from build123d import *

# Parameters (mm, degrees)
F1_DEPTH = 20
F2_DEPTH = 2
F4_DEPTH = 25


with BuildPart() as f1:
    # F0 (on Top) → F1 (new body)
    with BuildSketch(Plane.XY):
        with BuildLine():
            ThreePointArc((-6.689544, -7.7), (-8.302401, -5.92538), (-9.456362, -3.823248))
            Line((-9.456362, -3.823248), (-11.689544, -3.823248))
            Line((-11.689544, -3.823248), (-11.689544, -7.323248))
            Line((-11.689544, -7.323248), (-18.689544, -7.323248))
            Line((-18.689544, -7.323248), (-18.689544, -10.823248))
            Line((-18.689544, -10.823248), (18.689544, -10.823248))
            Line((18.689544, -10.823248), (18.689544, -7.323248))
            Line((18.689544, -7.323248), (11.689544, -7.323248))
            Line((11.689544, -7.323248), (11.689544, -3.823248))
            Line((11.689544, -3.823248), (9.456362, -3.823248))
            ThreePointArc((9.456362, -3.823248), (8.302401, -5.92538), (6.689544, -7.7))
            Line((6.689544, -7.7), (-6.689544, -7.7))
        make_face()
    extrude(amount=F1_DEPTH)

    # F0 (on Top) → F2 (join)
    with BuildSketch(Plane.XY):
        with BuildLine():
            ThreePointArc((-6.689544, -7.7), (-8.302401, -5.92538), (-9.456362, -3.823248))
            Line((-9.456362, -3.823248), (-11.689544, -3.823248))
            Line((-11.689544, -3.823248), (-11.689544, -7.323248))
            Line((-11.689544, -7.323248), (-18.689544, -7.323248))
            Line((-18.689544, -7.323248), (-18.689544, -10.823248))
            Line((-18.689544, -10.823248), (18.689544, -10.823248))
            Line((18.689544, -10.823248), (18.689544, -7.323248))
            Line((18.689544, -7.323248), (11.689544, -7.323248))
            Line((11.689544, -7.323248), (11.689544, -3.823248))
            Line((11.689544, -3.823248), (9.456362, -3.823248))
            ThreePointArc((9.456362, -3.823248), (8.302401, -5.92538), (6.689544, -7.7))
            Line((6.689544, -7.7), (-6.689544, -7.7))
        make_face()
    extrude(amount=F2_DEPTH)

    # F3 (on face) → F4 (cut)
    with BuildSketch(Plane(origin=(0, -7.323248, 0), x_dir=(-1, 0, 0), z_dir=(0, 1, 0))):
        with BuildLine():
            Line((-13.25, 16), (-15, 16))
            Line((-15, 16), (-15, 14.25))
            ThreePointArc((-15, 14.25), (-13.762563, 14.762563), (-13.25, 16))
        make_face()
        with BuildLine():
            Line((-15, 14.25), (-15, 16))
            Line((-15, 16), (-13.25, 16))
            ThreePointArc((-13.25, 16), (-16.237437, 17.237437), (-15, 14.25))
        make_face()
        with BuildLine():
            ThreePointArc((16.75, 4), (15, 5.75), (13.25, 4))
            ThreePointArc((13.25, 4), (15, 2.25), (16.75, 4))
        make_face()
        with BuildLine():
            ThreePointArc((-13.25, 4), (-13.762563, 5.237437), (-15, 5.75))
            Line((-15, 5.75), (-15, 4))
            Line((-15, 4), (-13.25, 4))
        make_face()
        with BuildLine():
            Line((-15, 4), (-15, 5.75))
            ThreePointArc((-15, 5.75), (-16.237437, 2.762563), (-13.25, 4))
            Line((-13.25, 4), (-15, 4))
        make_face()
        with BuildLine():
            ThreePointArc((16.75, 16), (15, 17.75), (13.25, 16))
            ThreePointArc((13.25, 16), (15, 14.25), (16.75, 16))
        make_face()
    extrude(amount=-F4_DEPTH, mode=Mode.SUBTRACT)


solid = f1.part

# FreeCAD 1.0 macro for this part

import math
import FreeCAD as App
import Part
import Sketcher

V = App.Vector

doc = App.newDocument("Part")
body = doc.addObject("PartDesign::Body", "Body")

# Sketch on XY plane
sketch1 = doc.addObject("Sketcher::SketchObject", "Sketch")
body.addObject(sketch1)
sketch1.AttachmentSupport = (doc.XY_Plane, [""])
sketch1.MapMode = "FlatFace"
sketch1.addGeometry(Part.ArcOfCircle(Part.Circle(V(0.000018, 0.000014, 0), V(0, 0, 1), 10.200022), math.radians(-157.986269), math.radians(-130.98322)), False)
sketch1.addGeometry(Part.LineSegment(V(-9.456362, -3.823248, 0), V(-11.689544, -3.823248, 0)), False)
sketch1.addGeometry(Part.LineSegment(V(-11.689544, -3.823248, 0), V(-11.689544, -7.323248, 0)), False)
sketch1.addGeometry(Part.LineSegment(V(-11.689544, -7.323248, 0), V(-18.689544, -7.323248, 0)), False)
sketch1.addGeometry(Part.LineSegment(V(-18.689544, -7.323248, 0), V(-18.689544, -10.823248, 0)), False)
sketch1.addGeometry(Part.LineSegment(V(-18.689544, -10.823248, 0), V(18.689544, -10.823248, 0)), False)
sketch1.addGeometry(Part.LineSegment(V(18.689544, -10.823248, 0), V(18.689544, -7.323248, 0)), False)
sketch1.addGeometry(Part.LineSegment(V(18.689544, -7.323248, 0), V(11.689544, -7.323248, 0)), False)
sketch1.addGeometry(Part.LineSegment(V(11.689544, -7.323248, 0), V(11.689544, -3.823248, 0)), False)
sketch1.addGeometry(Part.LineSegment(V(11.689544, -3.823248, 0), V(9.456362, -3.823248, 0)), False)
sketch1.addGeometry(Part.ArcOfCircle(Part.Circle(V(-0.000018, 0.000014, 0), V(0, 0, 1), 10.200022), math.radians(-49.01678), math.radians(-22.013731)), False)
sketch1.addGeometry(Part.LineSegment(V(6.689544, -7.7, 0), V(-6.689544, -7.7, 0)), False)
sketch1.addConstraint(Sketcher.Constraint("Coincident", 0, 1, 1, 1))
sketch1.addConstraint(Sketcher.Constraint("Coincident", 1, 2, 2, 1))
sketch1.addConstraint(Sketcher.Constraint("Coincident", 2, 2, 3, 1))
sketch1.addConstraint(Sketcher.Constraint("Coincident", 3, 2, 4, 1))
sketch1.addConstraint(Sketcher.Constraint("Coincident", 4, 2, 5, 1))
sketch1.addConstraint(Sketcher.Constraint("Coincident", 5, 2, 6, 1))
sketch1.addConstraint(Sketcher.Constraint("Coincident", 6, 2, 7, 1))
sketch1.addConstraint(Sketcher.Constraint("Coincident", 7, 2, 8, 1))
sketch1.addConstraint(Sketcher.Constraint("Coincident", 8, 2, 9, 1))
sketch1.addConstraint(Sketcher.Constraint("Coincident", 9, 2, 10, 2))
sketch1.addConstraint(Sketcher.Constraint("Coincident", 10, 1, 11, 1))
sketch1.addConstraint(Sketcher.Constraint("Coincident", 11, 2, 0, 2))
sketch1.addConstraint(Sketcher.Constraint("Horizontal", 1))
sketch1.addConstraint(Sketcher.Constraint("Vertical", 2))
sketch1.addConstraint(Sketcher.Constraint("Horizontal", 3))
sketch1.addConstraint(Sketcher.Constraint("Vertical", 4))
sketch1.addConstraint(Sketcher.Constraint("Horizontal", 5))
sketch1.addConstraint(Sketcher.Constraint("Vertical", 6))
sketch1.addConstraint(Sketcher.Constraint("Horizontal", 7))
sketch1.addConstraint(Sketcher.Constraint("Vertical", 8))
sketch1.addConstraint(Sketcher.Constraint("Horizontal", 9))
sketch1.addConstraint(Sketcher.Constraint("Horizontal", 11))
sketch1.addConstraint(Sketcher.Constraint("Equal", 0, 10))
sketch1.addConstraint(Sketcher.Constraint("Symmetric", 0, 3, 10, 3, -2))
sketch1.addConstraint(Sketcher.Constraint("Symmetric", 3, 2, 6, 2, -2))
sketch1.addConstraint(Sketcher.Constraint("Symmetric", 1, 2, 8, 2, -2))
sketch1.addConstraint(Sketcher.Constraint("Equal", 2, 4))
sketch1.addConstraint(Sketcher.Constraint("DistanceX", 3, 2, 3, 1, 7.0))
sketch1.addConstraint(Sketcher.Constraint("DistanceY", 2, 2, 2, 1, 3.5))
sketch1.addConstraint(Sketcher.Constraint("DistanceX", 10, 1, 7, 2, 5.0))
sketch1.addConstraint(Sketcher.Constraint("DistanceY", 10, 1, -1, 1, 7.7))
sketch1.addConstraint(Sketcher.Constraint("Radius", 0, 10.200022))
sketch1.addConstraint(Sketcher.Constraint("DistanceX", 1, 2, 1, 1, 2.233182))
sketch1.addConstraint(Sketcher.Constraint("DistanceX", 5, 1, 5, 2, 37.379088))
sketch1.addConstraint(Sketcher.Constraint("DistanceY", 0, 1, -1, 1, 3.823248))
pad1 = doc.addObject("PartDesign::Pad", "Pad")
body.addObject(pad1)
pad1.Profile = sketch1
pad1.Length = 20

# Sketch on XY plane
sketch2 = doc.addObject("Sketcher::SketchObject", "Sketch001")
body.addObject(sketch2)
sketch2.AttachmentSupport = (doc.XY_Plane, [""])
sketch2.MapMode = "FlatFace"
sketch2.addGeometry(Part.ArcOfCircle(Part.Circle(V(0.000018, 0.000014, 0), V(0, 0, 1), 10.200022), math.radians(-157.986269), math.radians(-130.98322)), False)
sketch2.addGeometry(Part.LineSegment(V(-9.456362, -3.823248, 0), V(-11.689544, -3.823248, 0)), False)
sketch2.addGeometry(Part.LineSegment(V(-11.689544, -3.823248, 0), V(-11.689544, -7.323248, 0)), False)
sketch2.addGeometry(Part.LineSegment(V(-11.689544, -7.323248, 0), V(-18.689544, -7.323248, 0)), False)
sketch2.addGeometry(Part.LineSegment(V(-18.689544, -7.323248, 0), V(-18.689544, -10.823248, 0)), False)
sketch2.addGeometry(Part.LineSegment(V(-18.689544, -10.823248, 0), V(18.689544, -10.823248, 0)), False)
sketch2.addGeometry(Part.LineSegment(V(18.689544, -10.823248, 0), V(18.689544, -7.323248, 0)), False)
sketch2.addGeometry(Part.LineSegment(V(18.689544, -7.323248, 0), V(11.689544, -7.323248, 0)), False)
sketch2.addGeometry(Part.LineSegment(V(11.689544, -7.323248, 0), V(11.689544, -3.823248, 0)), False)
sketch2.addGeometry(Part.LineSegment(V(11.689544, -3.823248, 0), V(9.456362, -3.823248, 0)), False)
sketch2.addGeometry(Part.ArcOfCircle(Part.Circle(V(-0.000018, 0.000014, 0), V(0, 0, 1), 10.200022), math.radians(-49.01678), math.radians(-22.013731)), False)
sketch2.addGeometry(Part.LineSegment(V(6.689544, -7.7, 0), V(-6.689544, -7.7, 0)), False)
sketch2.addConstraint(Sketcher.Constraint("Coincident", 0, 1, 1, 1))
sketch2.addConstraint(Sketcher.Constraint("Coincident", 1, 2, 2, 1))
sketch2.addConstraint(Sketcher.Constraint("Coincident", 2, 2, 3, 1))
sketch2.addConstraint(Sketcher.Constraint("Coincident", 3, 2, 4, 1))
sketch2.addConstraint(Sketcher.Constraint("Coincident", 4, 2, 5, 1))
sketch2.addConstraint(Sketcher.Constraint("Coincident", 5, 2, 6, 1))
sketch2.addConstraint(Sketcher.Constraint("Coincident", 6, 2, 7, 1))
sketch2.addConstraint(Sketcher.Constraint("Coincident", 7, 2, 8, 1))
sketch2.addConstraint(Sketcher.Constraint("Coincident", 8, 2, 9, 1))
sketch2.addConstraint(Sketcher.Constraint("Coincident", 9, 2, 10, 2))
sketch2.addConstraint(Sketcher.Constraint("Coincident", 10, 1, 11, 1))
sketch2.addConstraint(Sketcher.Constraint("Coincident", 11, 2, 0, 2))
sketch2.addConstraint(Sketcher.Constraint("Horizontal", 1))
sketch2.addConstraint(Sketcher.Constraint("Vertical", 2))
sketch2.addConstraint(Sketcher.Constraint("Horizontal", 3))
sketch2.addConstraint(Sketcher.Constraint("Vertical", 4))
sketch2.addConstraint(Sketcher.Constraint("Horizontal", 5))
sketch2.addConstraint(Sketcher.Constraint("Vertical", 6))
sketch2.addConstraint(Sketcher.Constraint("Horizontal", 7))
sketch2.addConstraint(Sketcher.Constraint("Vertical", 8))
sketch2.addConstraint(Sketcher.Constraint("Horizontal", 9))
sketch2.addConstraint(Sketcher.Constraint("Horizontal", 11))
sketch2.addConstraint(Sketcher.Constraint("Equal", 0, 10))
sketch2.addConstraint(Sketcher.Constraint("Symmetric", 0, 3, 10, 3, -2))
sketch2.addConstraint(Sketcher.Constraint("Symmetric", 3, 2, 6, 2, -2))
sketch2.addConstraint(Sketcher.Constraint("Symmetric", 1, 2, 8, 2, -2))
sketch2.addConstraint(Sketcher.Constraint("Equal", 2, 4))
sketch2.addConstraint(Sketcher.Constraint("DistanceX", 3, 2, 3, 1, 7.0))
sketch2.addConstraint(Sketcher.Constraint("DistanceY", 2, 2, 2, 1, 3.5))
sketch2.addConstraint(Sketcher.Constraint("DistanceX", 10, 1, 7, 2, 5.0))
sketch2.addConstraint(Sketcher.Constraint("DistanceY", 10, 1, -1, 1, 7.7))
sketch2.addConstraint(Sketcher.Constraint("Radius", 0, 10.200022))
sketch2.addConstraint(Sketcher.Constraint("DistanceX", 1, 2, 1, 1, 2.233182))
sketch2.addConstraint(Sketcher.Constraint("DistanceX", 5, 1, 5, 2, 37.379088))
sketch2.addConstraint(Sketcher.Constraint("DistanceY", 0, 1, -1, 1, 3.823248))
pad2 = doc.addObject("PartDesign::Pad", "Pad001")
body.addObject(pad2)
pad2.Profile = sketch2
pad2.Length = 2

# Sketch on XZ plane
sketch3 = doc.addObject("Sketcher::SketchObject", "Sketch002")
body.addObject(sketch3)
sketch3.AttachmentSupport = (doc.XZ_Plane, [""])
sketch3.MapMode = "FlatFace"
sketch3.AttachmentOffset = App.Placement(V(0, 0, 7.323248), App.Rotation())
sketch3.addGeometry(Part.ArcOfCircle(Part.Circle(V(15, 16, 0), V(0, 0, 1), 1.7), math.radians(180), math.radians(270)), False)
sketch3.addGeometry(Part.ArcOfCircle(Part.Circle(V(15, 16, 0), V(0, 0, 1), 1.8), math.radians(-90), math.radians(180)), False)
sketch3.addGeometry(Part.Circle(V(-15, 4, 0), V(0, 0, 1), 1.8), False)
sketch3.addGeometry(Part.ArcOfCircle(Part.Circle(V(15, 4, 0), V(0, 0, 1), 1.7), math.radians(90), math.radians(180)), False)
sketch3.addGeometry(Part.ArcOfCircle(Part.Circle(V(15, 4, 0), V(0, 0, 1), 1.8), math.radians(180), math.radians(450)), False)
sketch3.addGeometry(Part.Circle(V(-15, 16, 0), V(0, 0, 1), 1.8), False)
sketch3.addConstraint(Sketcher.Constraint("Tangent", 0, 1, 1, 2))
sketch3.addConstraint(Sketcher.Constraint("Coincident", 1, 1, 0, 2))
sketch3.addConstraint(Sketcher.Constraint("Tangent", 3, 1, 4, 2))
sketch3.addConstraint(Sketcher.Constraint("Coincident", 4, 1, 3, 2))
sketch3.addConstraint(Sketcher.Constraint("Equal", 1, 2))
sketch3.addConstraint(Sketcher.Constraint("Equal", 2, 3))
sketch3.addConstraint(Sketcher.Constraint("Equal", 4, 5))
sketch3.addConstraint(Sketcher.Constraint("Symmetric", 2, 3, 3, 3, -2))
sketch3.addConstraint(Sketcher.Constraint("Symmetric", 0, 3, 5, 3, -2))
sketch3.addConstraint(Sketcher.Constraint("Horizontal", 5, 3, 0, 1))
sketch3.addConstraint(Sketcher.Constraint("Horizontal", 3, 3, 4, 1))
sketch3.addConstraint(Sketcher.Constraint("Vertical", 1, 3, 3, 3))
sketch3.addConstraint(Sketcher.Constraint("Vertical", 4, 3, 1, 1))
sketch3.addConstraint(Sketcher.Constraint("Vertical", 1, 1, 3, 1))
sketch3.addConstraint(Sketcher.Constraint("Diameter", 2, 3.5))
sketch3.addConstraint(Sketcher.Constraint("DistanceX", -1, 1, 0, 3, 15.0))
sketch3.addConstraint(Sketcher.Constraint("DistanceY", -1, 1, 0, 3, 16.0))
sketch3.addConstraint(Sketcher.Constraint("DistanceY", -1, 1, 2, 3, 4.0))
pocket1 = doc.addObject("PartDesign::Pocket", "Pocket")
body.addObject(pocket1)
pocket1.Profile = sketch3
pocket1.Length = 25
pocket1.Reversed = True

doc.recompute()
